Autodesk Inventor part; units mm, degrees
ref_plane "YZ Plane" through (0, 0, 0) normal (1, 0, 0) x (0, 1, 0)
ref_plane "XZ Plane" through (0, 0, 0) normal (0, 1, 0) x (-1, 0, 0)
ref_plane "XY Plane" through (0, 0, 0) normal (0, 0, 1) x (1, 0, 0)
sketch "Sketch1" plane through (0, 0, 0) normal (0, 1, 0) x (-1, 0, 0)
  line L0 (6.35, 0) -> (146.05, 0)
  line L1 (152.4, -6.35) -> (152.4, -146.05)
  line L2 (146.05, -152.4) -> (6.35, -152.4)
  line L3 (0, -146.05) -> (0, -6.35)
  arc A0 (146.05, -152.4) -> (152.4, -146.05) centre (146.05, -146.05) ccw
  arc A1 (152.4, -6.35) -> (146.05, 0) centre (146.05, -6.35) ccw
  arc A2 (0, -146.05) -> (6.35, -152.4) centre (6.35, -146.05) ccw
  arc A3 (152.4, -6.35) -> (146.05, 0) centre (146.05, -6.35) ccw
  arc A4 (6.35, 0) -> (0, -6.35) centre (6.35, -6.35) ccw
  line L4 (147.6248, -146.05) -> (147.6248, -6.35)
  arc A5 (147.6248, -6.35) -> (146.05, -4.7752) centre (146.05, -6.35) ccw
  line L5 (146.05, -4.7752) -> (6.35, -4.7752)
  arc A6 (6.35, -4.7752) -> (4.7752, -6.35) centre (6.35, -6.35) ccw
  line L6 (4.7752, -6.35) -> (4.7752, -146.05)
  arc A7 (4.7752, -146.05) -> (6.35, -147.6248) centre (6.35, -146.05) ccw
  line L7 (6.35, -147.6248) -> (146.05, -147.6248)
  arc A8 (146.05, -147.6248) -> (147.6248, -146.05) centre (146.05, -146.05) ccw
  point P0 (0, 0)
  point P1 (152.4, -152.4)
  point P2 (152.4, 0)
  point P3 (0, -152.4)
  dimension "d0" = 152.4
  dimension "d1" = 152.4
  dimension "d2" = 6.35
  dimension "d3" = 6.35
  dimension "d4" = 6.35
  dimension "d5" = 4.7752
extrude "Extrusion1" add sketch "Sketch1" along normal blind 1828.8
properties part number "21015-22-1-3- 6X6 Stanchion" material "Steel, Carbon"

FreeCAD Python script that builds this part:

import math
import FreeCAD as App
import Part
import Sketcher
Q = App.Units.Quantity

doc = App.newDocument("Part")
params = doc.addObject("Spreadsheet::Sheet", "Params")
for row, (alias, value) in enumerate([
    ("sketch1_radius", "0.25 in"),
    ("pad1_length", "72 in"),
], start=1):
    params.set(f"A{row}", alias)
    params.set(f"B{row}", "=" + value)
    params.setAlias(f"B{row}", alias)

body = doc.addObject("PartDesign::Body", "Body")

# Sketch on XZ plane
sketch1 = body.newObject("Sketcher::SketchObject", "Sketch")
sketch1.AttachmentSupport = (doc.getObject("XZ_Plane"), [""])
sketch1.MapMode = "FlatFace"
sketch1.addGeometry([
    Part.LineSegment(App.Vector(-146.1, 0, 0), App.Vector(-6.3, 0, 0)),  # 0
    Part.ArcOfCircle(Part.Circle(App.Vector(-6.3, -6.3, 0), App.Vector(0, 0, 1), 6.3), math.radians(0), math.radians(90)),  # 1
    Part.LineSegment(App.Vector(0, -6.3, 0), App.Vector(0, -146.1, 0)),  # 2
    Part.ArcOfCircle(Part.Circle(App.Vector(-6.3, -146.1, 0), App.Vector(0, 0, 1), 6.3), math.radians(-90), math.radians(0)),  # 3
    Part.LineSegment(App.Vector(-6.3, -152.4, 0), App.Vector(-146.1, -152.4, 0)),  # 4
    Part.ArcOfCircle(Part.Circle(App.Vector(-146.1, -146.1, 0), App.Vector(0, 0, 1), 6.3), math.radians(180), math.radians(270)),  # 5
    Part.LineSegment(App.Vector(-152.4, -146.1, 0), App.Vector(-152.4, -6.3, 0)),  # 6
    Part.ArcOfCircle(Part.Circle(App.Vector(-146.1, -6.3, 0), App.Vector(0, 0, 1), 6.3), math.radians(90), math.radians(180)),  # 7
    Part.LineSegment(App.Vector(-147.6, -6.3, 0), App.Vector(-147.6, -146.1, 0)),  # 8
    Part.ArcOfCircle(Part.Circle(App.Vector(-146.1, -146.1, 0), App.Vector(0, 0, 1), 1.6), math.radians(180), math.radians(270)),  # 9
    Part.LineSegment(App.Vector(-146.1, -147.6, 0), App.Vector(-6.3, -147.6, 0)),  # 10
    Part.ArcOfCircle(Part.Circle(App.Vector(-6.3, -146.1, 0), App.Vector(0, 0, 1), 1.6), math.radians(-90), math.radians(0)),  # 11
    Part.LineSegment(App.Vector(-4.8, -146.1, 0), App.Vector(-4.8, -6.3, 0)),  # 12
    Part.ArcOfCircle(Part.Circle(App.Vector(-6.3, -6.3, 0), App.Vector(0, 0, 1), 1.6), math.radians(0), math.radians(90)),  # 13
    Part.LineSegment(App.Vector(-6.3, -4.8, 0), App.Vector(-146.1, -4.8, 0)),  # 14
    Part.ArcOfCircle(Part.Circle(App.Vector(-146.1, -6.3, 0), App.Vector(0, 0, 1), 1.6), math.radians(90), math.radians(180)),  # 15
], False)
sketch1.addConstraint([
    Sketcher.Constraint("Tangent", 0, 2, 1, 2),
    Sketcher.Constraint("Tangent", 1, 1, 2, 1),
    Sketcher.Constraint("Tangent", 2, 2, 3, 2),
    Sketcher.Constraint("Tangent", 3, 1, 4, 1),
    Sketcher.Constraint("Tangent", 4, 2, 5, 2),
    Sketcher.Constraint("Tangent", 5, 1, 6, 1),
    Sketcher.Constraint("Tangent", 6, 2, 7, 2),
    Sketcher.Constraint("Tangent", 7, 1, 0, 1),
    Sketcher.Constraint("Tangent", 8, 2, 9, 1),
    Sketcher.Constraint("Tangent", 9, 2, 10, 1),
    Sketcher.Constraint("Tangent", 10, 2, 11, 1),
    Sketcher.Constraint("Tangent", 11, 2, 12, 1),
    Sketcher.Constraint("Tangent", 12, 2, 13, 1),
    Sketcher.Constraint("Tangent", 13, 2, 14, 1),
    Sketcher.Constraint("Tangent", 14, 2, 15, 1),
    Sketcher.Constraint("Tangent", 15, 2, 8, 1),
    Sketcher.Constraint("Horizontal", 0),
    Sketcher.Constraint("Vertical", 2),
    Sketcher.Constraint("Horizontal", 4),
    Sketcher.Constraint("Vertical", 6),
    Sketcher.Constraint("Vertical", 8),
    Sketcher.Constraint("Horizontal", 10),
    Sketcher.Constraint("Vertical", 12),
    Sketcher.Constraint("Horizontal", 14),
    Sketcher.Constraint("Coincident", 9, 3, 5, 3),
    Sketcher.Constraint("Coincident", 11, 3, 3, 3),
    Sketcher.Constraint("Coincident", 13, 3, 1, 3),
    Sketcher.Constraint("Equal", 1, 3),
    Sketcher.Constraint("Equal", 3, 5),
    Sketcher.Constraint("Equal", 5, 7),
    Sketcher.Constraint("Equal", 13, 15),
    Sketcher.Constraint("PointOnObject", 0, 2, -1),
    Sketcher.Constraint("PointOnObject", 1, 1, -2),
    Sketcher.Constraint("Equal", 14, 2),
    Sketcher.Constraint("Radius", 1, Q("0.25 in")),
    Sketcher.Constraint("DistanceY", 3, 1, -1, 1, Q("6 in")),
    Sketcher.Constraint("DistanceX", 11, 2, -1, 1, Q("0.188 in")),
])
sketch1.setExpression("Constraints[34]", "Params.sketch1_radius")
pad1 = body.newObject("PartDesign::Pad", "Pad")
pad1.Profile = sketch1
pad1.setExpression("Length", "Params.pad1_length")
pad1.Reversed = True

doc.recompute()
